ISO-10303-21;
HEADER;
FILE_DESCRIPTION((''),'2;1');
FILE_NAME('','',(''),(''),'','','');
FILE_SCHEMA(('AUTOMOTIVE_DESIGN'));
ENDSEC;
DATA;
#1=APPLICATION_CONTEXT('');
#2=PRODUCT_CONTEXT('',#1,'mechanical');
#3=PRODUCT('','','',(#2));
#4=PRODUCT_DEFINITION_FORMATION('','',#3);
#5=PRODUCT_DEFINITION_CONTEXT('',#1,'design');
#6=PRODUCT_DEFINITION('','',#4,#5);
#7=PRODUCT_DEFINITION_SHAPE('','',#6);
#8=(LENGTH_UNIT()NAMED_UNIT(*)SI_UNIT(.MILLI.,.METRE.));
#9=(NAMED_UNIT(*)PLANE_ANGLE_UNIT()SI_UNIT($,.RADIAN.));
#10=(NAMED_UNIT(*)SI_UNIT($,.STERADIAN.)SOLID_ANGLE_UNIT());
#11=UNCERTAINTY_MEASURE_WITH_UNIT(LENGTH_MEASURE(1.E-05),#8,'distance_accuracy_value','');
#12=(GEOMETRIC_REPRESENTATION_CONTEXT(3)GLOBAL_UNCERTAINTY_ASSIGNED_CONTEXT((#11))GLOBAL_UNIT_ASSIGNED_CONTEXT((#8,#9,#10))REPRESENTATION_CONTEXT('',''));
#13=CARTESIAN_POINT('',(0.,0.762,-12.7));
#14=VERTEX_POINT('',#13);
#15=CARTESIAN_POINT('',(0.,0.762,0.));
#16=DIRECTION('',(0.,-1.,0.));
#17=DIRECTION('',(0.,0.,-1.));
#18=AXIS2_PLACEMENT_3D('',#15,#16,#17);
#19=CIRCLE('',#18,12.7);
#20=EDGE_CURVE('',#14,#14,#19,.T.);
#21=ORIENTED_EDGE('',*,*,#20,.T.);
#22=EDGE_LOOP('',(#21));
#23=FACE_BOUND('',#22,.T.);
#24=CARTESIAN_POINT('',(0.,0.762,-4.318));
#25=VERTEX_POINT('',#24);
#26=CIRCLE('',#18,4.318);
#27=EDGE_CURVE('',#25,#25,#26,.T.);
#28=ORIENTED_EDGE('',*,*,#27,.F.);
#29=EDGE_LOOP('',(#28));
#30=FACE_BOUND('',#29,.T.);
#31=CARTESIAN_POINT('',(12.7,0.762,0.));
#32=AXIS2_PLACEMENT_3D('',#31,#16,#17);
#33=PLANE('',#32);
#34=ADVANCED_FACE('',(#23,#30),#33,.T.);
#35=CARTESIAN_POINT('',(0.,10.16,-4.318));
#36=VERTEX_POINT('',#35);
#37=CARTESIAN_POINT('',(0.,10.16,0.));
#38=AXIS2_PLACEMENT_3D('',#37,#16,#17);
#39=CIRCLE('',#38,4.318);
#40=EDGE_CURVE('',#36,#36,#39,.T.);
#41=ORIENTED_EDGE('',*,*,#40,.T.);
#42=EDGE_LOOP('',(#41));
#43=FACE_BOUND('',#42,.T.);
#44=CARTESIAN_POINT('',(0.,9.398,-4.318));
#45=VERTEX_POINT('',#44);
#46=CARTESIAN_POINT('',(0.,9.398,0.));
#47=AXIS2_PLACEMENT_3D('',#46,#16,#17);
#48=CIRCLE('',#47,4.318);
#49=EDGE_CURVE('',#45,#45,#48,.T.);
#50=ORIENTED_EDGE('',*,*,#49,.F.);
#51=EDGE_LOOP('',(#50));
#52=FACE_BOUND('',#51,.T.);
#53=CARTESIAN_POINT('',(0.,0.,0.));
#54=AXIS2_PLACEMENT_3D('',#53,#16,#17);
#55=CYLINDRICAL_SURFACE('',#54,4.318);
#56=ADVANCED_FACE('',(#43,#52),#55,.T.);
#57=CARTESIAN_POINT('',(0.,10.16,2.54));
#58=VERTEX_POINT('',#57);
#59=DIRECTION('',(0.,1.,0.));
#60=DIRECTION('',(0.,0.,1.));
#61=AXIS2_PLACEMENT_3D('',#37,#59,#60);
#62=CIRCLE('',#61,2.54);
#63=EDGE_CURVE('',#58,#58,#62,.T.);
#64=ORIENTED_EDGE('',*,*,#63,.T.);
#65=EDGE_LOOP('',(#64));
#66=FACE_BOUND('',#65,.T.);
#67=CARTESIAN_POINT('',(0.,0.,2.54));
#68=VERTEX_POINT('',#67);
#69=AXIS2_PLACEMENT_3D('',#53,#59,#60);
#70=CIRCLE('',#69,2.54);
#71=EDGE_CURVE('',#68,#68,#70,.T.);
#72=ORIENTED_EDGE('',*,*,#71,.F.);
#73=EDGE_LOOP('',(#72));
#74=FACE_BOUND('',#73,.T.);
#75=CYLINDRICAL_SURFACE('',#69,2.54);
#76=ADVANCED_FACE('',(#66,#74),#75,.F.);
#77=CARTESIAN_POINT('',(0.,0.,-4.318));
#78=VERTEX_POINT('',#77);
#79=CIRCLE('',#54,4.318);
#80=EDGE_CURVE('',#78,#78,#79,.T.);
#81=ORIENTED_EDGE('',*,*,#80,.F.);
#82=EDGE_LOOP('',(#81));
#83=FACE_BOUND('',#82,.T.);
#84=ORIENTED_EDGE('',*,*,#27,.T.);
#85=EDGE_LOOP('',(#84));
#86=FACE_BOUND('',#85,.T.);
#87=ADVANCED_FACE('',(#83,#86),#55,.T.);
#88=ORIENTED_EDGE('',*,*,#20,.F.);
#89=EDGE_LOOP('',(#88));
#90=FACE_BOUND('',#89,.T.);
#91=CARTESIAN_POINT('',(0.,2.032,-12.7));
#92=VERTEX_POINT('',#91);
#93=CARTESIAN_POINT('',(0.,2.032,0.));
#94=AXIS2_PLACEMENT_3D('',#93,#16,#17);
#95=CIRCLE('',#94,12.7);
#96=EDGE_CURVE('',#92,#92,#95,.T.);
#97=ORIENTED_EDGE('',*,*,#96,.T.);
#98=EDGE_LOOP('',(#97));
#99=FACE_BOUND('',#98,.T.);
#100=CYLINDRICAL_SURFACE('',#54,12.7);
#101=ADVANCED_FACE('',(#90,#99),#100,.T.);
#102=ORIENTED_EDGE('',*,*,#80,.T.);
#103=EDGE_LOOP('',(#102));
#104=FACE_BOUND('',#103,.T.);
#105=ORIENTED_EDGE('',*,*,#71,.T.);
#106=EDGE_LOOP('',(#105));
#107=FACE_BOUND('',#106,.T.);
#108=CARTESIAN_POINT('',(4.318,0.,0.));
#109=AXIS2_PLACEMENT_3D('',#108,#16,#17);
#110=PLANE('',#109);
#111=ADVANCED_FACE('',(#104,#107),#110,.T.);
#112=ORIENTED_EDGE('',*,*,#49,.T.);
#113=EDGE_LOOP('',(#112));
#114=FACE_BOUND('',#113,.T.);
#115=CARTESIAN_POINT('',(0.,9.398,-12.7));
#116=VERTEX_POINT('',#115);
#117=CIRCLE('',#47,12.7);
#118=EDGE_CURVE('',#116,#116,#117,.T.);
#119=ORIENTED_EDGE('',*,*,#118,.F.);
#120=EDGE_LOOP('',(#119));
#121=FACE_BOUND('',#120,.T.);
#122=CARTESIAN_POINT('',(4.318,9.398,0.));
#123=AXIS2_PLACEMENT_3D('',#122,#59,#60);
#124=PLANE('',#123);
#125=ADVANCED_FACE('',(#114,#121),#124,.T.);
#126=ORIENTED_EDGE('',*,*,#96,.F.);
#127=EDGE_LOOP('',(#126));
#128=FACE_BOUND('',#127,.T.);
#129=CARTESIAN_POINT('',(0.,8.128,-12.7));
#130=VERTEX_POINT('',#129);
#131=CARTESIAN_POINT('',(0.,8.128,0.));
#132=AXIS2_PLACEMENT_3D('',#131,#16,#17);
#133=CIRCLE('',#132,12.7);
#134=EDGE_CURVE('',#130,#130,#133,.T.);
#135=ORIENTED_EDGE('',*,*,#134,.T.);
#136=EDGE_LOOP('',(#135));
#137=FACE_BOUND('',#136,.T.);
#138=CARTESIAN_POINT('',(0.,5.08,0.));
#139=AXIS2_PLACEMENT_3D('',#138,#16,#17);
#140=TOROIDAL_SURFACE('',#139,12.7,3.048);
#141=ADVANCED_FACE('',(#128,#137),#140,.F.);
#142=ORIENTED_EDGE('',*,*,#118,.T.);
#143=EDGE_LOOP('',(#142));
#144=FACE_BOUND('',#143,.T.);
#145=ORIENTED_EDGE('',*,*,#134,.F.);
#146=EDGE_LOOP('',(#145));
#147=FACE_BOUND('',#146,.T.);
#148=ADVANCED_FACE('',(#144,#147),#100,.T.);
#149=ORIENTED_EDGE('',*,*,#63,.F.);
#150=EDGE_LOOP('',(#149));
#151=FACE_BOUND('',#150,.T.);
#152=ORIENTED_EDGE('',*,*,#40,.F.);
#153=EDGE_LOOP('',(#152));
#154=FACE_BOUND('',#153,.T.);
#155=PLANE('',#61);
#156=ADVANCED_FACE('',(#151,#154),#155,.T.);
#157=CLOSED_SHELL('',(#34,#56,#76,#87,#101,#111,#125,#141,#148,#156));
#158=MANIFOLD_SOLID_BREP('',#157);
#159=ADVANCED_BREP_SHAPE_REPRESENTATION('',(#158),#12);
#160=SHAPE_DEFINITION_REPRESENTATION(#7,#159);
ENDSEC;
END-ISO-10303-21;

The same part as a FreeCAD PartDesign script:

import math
import FreeCAD as App
import Part
import Sketcher
Q = App.Units.Quantity

doc = App.newDocument("Part")
params = doc.addObject("Spreadsheet::Sheet", "Params")
for row, (alias, value) in enumerate([
    ("sketch1_radius", "0.12 in"),
    ("sketch1_height", "0.4 in"),
    ("sketch1_width", "0.17 in"),
    ("sketch1_width2", "0.33 in"),
    ("sketch1_height2", "0.03 in"),
    ("revolution_angle", "360 deg"),
    ("sketch2_diameter", "0.2 in"),
], start=1):
    params.set(f"A{row}", alias)
    params.set(f"B{row}", "=" + value)
    params.setAlias(f"B{row}", alias)

body = doc.addObject("PartDesign::Body", "Body")

# Sketch on XY plane
sketch1 = doc.addObject("Sketcher::SketchObject", "Sketch")
body.addObject(sketch1)
sketch1.AttachmentSupport = (doc.XY_Plane, [""])
sketch1.MapMode = "FlatFace"
sketch1.addGeometry([
    Part.LineSegment(App.Vector(0, 10.2, 0), App.Vector(0, 0, 0)),  # 0
    Part.LineSegment(App.Vector(0, 0, 0), App.Vector(4.3, 0, 0)),  # 1
    Part.LineSegment(App.Vector(4.3, 0, 0), App.Vector(4.3, 0.8, 0)),  # 2
    Part.LineSegment(App.Vector(4.3, 0.8, 0), App.Vector(12.7, 0.8, 0)),  # 3
    Part.LineSegment(App.Vector(12.7, 0.8, 0), App.Vector(12.7, 2, 0)),  # 4
    Part.ArcOfCircle(Part.Circle(App.Vector(12.7, 5.1, 0), App.Vector(0, 0, 1), 3), math.radians(90), math.radians(270)),  # 5
    Part.LineSegment(App.Vector(12.7, 8.1, 0), App.Vector(12.7, 9.4, 0)),  # 6
    Part.LineSegment(App.Vector(12.7, 9.4, 0), App.Vector(4.3, 9.4, 0)),  # 7
    Part.LineSegment(App.Vector(4.3, 9.4, 0), App.Vector(4.3, 10.2, 0)),  # 8
    Part.LineSegment(App.Vector(4.3, 10.2, 0), App.Vector(0, 10.2, 0)),  # 9
], False)
sketch1.addConstraint([
    Sketcher.Constraint("Coincident", 0, 2, 1, 1),
    Sketcher.Constraint("Coincident", 1, 2, 2, 1),
    Sketcher.Constraint("Coincident", 2, 2, 3, 1),
    Sketcher.Constraint("Coincident", 3, 2, 4, 1),
    Sketcher.Constraint("Coincident", 4, 2, 5, 2),
    Sketcher.Constraint("Coincident", 5, 1, 6, 1),
    Sketcher.Constraint("Coincident", 6, 2, 7, 1),
    Sketcher.Constraint("Coincident", 7, 2, 8, 1),
    Sketcher.Constraint("Coincident", 8, 2, 9, 1),
    Sketcher.Constraint("Coincident", 9, 2, 0, 1),
    Sketcher.Constraint("Vertical", 0),
    Sketcher.Constraint("Horizontal", 1),
    Sketcher.Constraint("Vertical", 2),
    Sketcher.Constraint("Horizontal", 3),
    Sketcher.Constraint("Vertical", 4),
    Sketcher.Constraint("Vertical", 6),
    Sketcher.Constraint("Horizontal", 7),
    Sketcher.Constraint("Vertical", 8),
    Sketcher.Constraint("Horizontal", 9),
    Sketcher.Constraint("Coincident", 0, 2, -1, 1),
    Sketcher.Constraint("Vertical", 5, 3, 3, 2),
    Sketcher.Constraint("Vertical", 4, 2, 5, 1),
    Sketcher.Constraint("Vertical", 2, 2, 7, 2),
    Sketcher.Constraint("Equal", 4, 6),
    Sketcher.Constraint("Equal", 2, 8),
    Sketcher.Constraint("Radius", 5, Q("0.12 in")),
    Sketcher.Constraint("DistanceY", 0, 2, 0, 1, Q("0.4 in")),
    Sketcher.Constraint("DistanceX", 1, 1, 1, 2, Q("0.17 in")),
    Sketcher.Constraint("DistanceX", 3, 1, 3, 2, Q("0.33 in")),
    Sketcher.Constraint("DistanceY", 2, 1, 2, 2, Q("0.03 in")),
])
sketch1.setExpression("Constraints[25]", "Params.sketch1_radius")
sketch1.setExpression("Constraints[26]", "Params.sketch1_height")
sketch1.setExpression("Constraints[27]", "Params.sketch1_width")
sketch1.setExpression("Constraints[28]", "Params.sketch1_width2")
sketch1.setExpression("Constraints[29]", "Params.sketch1_height2")
revolution = doc.addObject("PartDesign::Revolution", "Revolution")
body.addObject(revolution)
revolution.Profile = sketch1
revolution.ReferenceAxis = (sketch1, ["V_Axis"])
revolution.setExpression("Angle", "Params.revolution_angle")

# Sketch on XZ plane
sketch2 = doc.addObject("Sketcher::SketchObject", "Sketch001")
body.addObject(sketch2)
sketch2.AttachmentSupport = (doc.XZ_Plane, [""])
sketch2.MapMode = "FlatFace"
sketch2.AttachmentOffset = App.Placement(App.Vector(0, 0, -0.4 * 25.4), App.Rotation())
sketch2.addGeometry(Part.Circle(App.Vector(0, 0, 0), App.Vector(0, 0, 1), 2.5), False)
sketch2.addConstraint([
    Sketcher.Constraint("Coincident", 0, 3, -1, 1),
    Sketcher.Constraint("Diameter", 0, Q("0.2 in")),
])
sketch2.setExpression("Constraints[1]", "Params.sketch2_diameter")
pocket1 = doc.addObject("PartDesign::Pocket", "Pocket")
body.addObject(pocket1)
pocket1.Profile = sketch2
pocket1.Type = "ThroughAll"
pocket1.Reversed = True

doc.recompute()
